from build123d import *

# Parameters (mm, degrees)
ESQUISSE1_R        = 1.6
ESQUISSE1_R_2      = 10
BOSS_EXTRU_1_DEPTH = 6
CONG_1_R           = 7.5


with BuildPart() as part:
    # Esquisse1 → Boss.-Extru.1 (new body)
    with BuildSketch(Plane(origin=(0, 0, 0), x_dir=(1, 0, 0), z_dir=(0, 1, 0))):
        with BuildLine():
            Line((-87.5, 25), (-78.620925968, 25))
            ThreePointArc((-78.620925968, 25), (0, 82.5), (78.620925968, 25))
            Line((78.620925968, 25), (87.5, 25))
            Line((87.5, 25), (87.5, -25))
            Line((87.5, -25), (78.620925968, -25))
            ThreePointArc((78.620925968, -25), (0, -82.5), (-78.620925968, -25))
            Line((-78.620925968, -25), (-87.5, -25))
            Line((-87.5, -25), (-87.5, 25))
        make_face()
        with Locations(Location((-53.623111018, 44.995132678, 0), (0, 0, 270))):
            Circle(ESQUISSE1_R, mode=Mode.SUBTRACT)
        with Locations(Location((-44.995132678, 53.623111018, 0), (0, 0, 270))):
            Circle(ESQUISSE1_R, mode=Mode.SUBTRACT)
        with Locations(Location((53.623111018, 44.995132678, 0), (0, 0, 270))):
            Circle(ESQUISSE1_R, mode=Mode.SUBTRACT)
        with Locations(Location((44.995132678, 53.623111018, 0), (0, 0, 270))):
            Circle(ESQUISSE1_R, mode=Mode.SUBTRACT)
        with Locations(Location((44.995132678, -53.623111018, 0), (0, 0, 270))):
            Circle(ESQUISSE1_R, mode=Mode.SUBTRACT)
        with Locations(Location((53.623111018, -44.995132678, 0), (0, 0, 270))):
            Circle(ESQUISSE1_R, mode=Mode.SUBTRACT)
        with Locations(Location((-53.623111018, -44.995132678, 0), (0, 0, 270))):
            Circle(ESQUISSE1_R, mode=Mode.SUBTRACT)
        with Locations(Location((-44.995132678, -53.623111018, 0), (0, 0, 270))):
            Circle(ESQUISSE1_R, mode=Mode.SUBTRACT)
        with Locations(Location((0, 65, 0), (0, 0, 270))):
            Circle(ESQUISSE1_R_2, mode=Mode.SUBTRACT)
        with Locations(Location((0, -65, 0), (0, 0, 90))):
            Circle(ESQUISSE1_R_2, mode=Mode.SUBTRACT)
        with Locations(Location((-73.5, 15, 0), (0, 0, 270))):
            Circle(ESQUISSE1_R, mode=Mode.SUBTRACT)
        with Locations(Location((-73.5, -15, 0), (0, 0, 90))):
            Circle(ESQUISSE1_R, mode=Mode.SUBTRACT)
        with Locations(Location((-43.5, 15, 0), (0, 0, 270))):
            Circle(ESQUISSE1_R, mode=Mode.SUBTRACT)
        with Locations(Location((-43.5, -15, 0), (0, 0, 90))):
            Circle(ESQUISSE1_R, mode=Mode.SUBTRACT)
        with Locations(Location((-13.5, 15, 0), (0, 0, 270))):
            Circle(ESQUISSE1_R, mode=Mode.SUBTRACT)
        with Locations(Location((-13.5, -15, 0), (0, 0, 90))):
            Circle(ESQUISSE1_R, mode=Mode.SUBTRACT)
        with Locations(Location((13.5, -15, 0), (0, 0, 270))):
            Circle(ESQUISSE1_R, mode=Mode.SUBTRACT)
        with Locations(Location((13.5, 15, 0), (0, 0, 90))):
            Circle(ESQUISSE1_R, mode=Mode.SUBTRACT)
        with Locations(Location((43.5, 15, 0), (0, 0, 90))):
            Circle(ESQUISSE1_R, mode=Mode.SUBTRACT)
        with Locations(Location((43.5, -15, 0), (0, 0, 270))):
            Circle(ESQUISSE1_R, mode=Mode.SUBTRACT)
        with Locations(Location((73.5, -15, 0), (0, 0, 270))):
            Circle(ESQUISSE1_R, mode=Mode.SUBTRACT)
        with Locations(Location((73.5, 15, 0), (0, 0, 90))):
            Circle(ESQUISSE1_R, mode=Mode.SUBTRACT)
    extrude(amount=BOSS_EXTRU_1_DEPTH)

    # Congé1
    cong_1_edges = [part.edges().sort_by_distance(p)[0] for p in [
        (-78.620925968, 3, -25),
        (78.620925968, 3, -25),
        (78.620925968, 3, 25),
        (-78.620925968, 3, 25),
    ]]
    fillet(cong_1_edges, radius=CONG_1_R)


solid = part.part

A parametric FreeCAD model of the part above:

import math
import FreeCAD as App
import Part
import Sketcher


def edges_at(feature, points):
    """Names of the edges that pass closest to the given points."""
    edges = feature.Shape.Edges
    near = lambda p: min(range(len(edges)), key=lambda i: edges[i].distToShape(Part.Vertex(*p))[0])
    return sorted({f"Edge{near(p) + 1}" for p in points})

doc = App.newDocument("Part")
params = doc.addObject("Spreadsheet::Sheet", "Params")
for row, (alias, value) in enumerate([
    ("sketch1_diameter", "20 mm"),
    ("sketch1_diameter2", "3.2 mm"),
    ("sketch1_radius", "82.5 mm"),
    ("sketch1_height", "50 mm"),
    ("pad1_length", "6 mm"),
    ("fillet_radius", "7.5 mm"),
], start=1):
    params.set(f"A{row}", alias)
    params.set(f"B{row}", "=" + value)
    params.setAlias(f"B{row}", alias)

body = doc.addObject("PartDesign::Body", "Body")

# Sketch on XZ plane
sketch1 = body.newObject("Sketcher::SketchObject", "Sketch")
sketch1.AttachmentSupport = (doc.getObject("XZ_Plane"), [""])
sketch1.MapMode = "FlatFace"
sketch1.addGeometry([
    Part.LineSegment(App.Vector(-78.6, -25, 0), App.Vector(-87.5, -25, 0)),  # 0
    Part.LineSegment(App.Vector(-87.5, -25, 0), App.Vector(-87.5, 25, 0)),  # 1
    Part.LineSegment(App.Vector(-87.5, 25, 0), App.Vector(-78.6, 25, 0)),  # 2
    Part.ArcOfCircle(Part.Circle(App.Vector(0, 0, 0), App.Vector(0, 0, 1), 82.5), math.radians(18), math.radians(162)),  # 3
    Part.LineSegment(App.Vector(78.6, 25, 0), App.Vector(87.5, 25, 0)),  # 4
    Part.LineSegment(App.Vector(87.5, 25, 0), App.Vector(87.5, -25, 0)),  # 5
    Part.LineSegment(App.Vector(87.5, -25, 0), App.Vector(78.6, -25, 0)),  # 6
    Part.ArcOfCircle(Part.Circle(App.Vector(0, 0, 0), App.Vector(0, 0, 1), 82.5), math.radians(-162), math.radians(-18)),  # 7
    Part.Circle(App.Vector(45, 53.6, 0), App.Vector(0, 0, 1), 1.6),  # 8
    Part.Circle(App.Vector(53.6, 45, 0), App.Vector(0, 0, 1), 1.6),  # 9
    Part.Circle(App.Vector(73.5, 15, 0), App.Vector(0, 0, 1), 1.6),  # 10
    Part.Circle(App.Vector(43.5, 15, 0), App.Vector(0, 0, 1), 1.6),  # 11
    Part.Circle(App.Vector(13.5, 15, 0), App.Vector(0, 0, 1), 1.6),  # 12
    Part.Circle(App.Vector(0, 65, 0), App.Vector(0, 0, 1), 10),  # 13
    Part.Circle(App.Vector(-45, 53.6, 0), App.Vector(0, 0, 1), 1.6),  # 14
    Part.Circle(App.Vector(-53.6, 45, 0), App.Vector(0, 0, 1), 1.6),  # 15
    Part.Circle(App.Vector(-13.5, 15, 0), App.Vector(0, 0, 1), 1.6),  # 16
    Part.Circle(App.Vector(-43.5, 15, 0), App.Vector(0, 0, 1), 1.6),  # 17
    Part.Circle(App.Vector(-73.5, 15, 0), App.Vector(0, 0, 1), 1.6),  # 18
    Part.Circle(App.Vector(73.5, -15, 0), App.Vector(0, 0, 1), 1.6),  # 19
    Part.Circle(App.Vector(43.5, -15, 0), App.Vector(0, 0, 1), 1.6),  # 20
    Part.Circle(App.Vector(13.5, -15, 0), App.Vector(0, 0, 1), 1.6),  # 21
    Part.Circle(App.Vector(53.6, -45, 0), App.Vector(0, 0, 1), 1.6),  # 22
    Part.Circle(App.Vector(45, -53.6, 0), App.Vector(0, 0, 1), 1.6),  # 23
    Part.Circle(App.Vector(-13.5, -15, 0), App.Vector(0, 0, 1), 1.6),  # 24
    Part.Circle(App.Vector(-43.5, -15, 0), App.Vector(0, 0, 1), 1.6),  # 25
    Part.Circle(App.Vector(-73.5, -15, 0), App.Vector(0, 0, 1), 1.6),  # 26
    Part.Circle(App.Vector(0, -65, 0), App.Vector(0, 0, 1), 10),  # 27
    Part.Circle(App.Vector(-53.6, -45, 0), App.Vector(0, 0, 1), 1.6),  # 28
    Part.Circle(App.Vector(-45, -53.6, 0), App.Vector(0, 0, 1), 1.6),  # 29
], False)
sketch1.addConstraint([
    Sketcher.Constraint("Coincident", 0, 2, 1, 1),
    Sketcher.Constraint("Coincident", 1, 2, 2, 1),
    Sketcher.Constraint("Coincident", 2, 2, 3, 2),
    Sketcher.Constraint("Coincident", 3, 1, 4, 1),
    Sketcher.Constraint("Coincident", 4, 2, 5, 1),
    Sketcher.Constraint("Coincident", 5, 2, 6, 1),
    Sketcher.Constraint("Coincident", 6, 2, 7, 2),
    Sketcher.Constraint("Coincident", 7, 1, 0, 1),
    Sketcher.Constraint("Horizontal", 0),
    Sketcher.Constraint("Vertical", 1),
    Sketcher.Constraint("Horizontal", 2),
    Sketcher.Constraint("Horizontal", 4),
    Sketcher.Constraint("Vertical", 5),
    Sketcher.Constraint("Horizontal", 6),
    Sketcher.Constraint("Coincident", 3, 3, -1, 1),
    Sketcher.Constraint("Coincident", 7, 3, -1, 1),
    Sketcher.Constraint("Equal", 3, 7),
    Sketcher.Constraint("Equal", 8, 9),
    Sketcher.Constraint("Equal", 9, 10),
    Sketcher.Constraint("Equal", 10, 11),
    Sketcher.Constraint("Equal", 11, 12),
    Sketcher.Constraint("Equal", 12, 14),
    Sketcher.Constraint("Equal", 14, 15),
    Sketcher.Constraint("Equal", 15, 16),
    Sketcher.Constraint("Equal", 16, 17),
    Sketcher.Constraint("Equal", 17, 18),
    Sketcher.Constraint("Equal", 18, 19),
    Sketcher.Constraint("Equal", 19, 20),
    Sketcher.Constraint("Equal", 20, 21),
    Sketcher.Constraint("Equal", 21, 22),
    Sketcher.Constraint("Equal", 22, 23),
    Sketcher.Constraint("Equal", 23, 24),
    Sketcher.Constraint("Equal", 24, 25),
    Sketcher.Constraint("Equal", 25, 26),
    Sketcher.Constraint("Equal", 13, 27),
    Sketcher.Constraint("Equal", 26, 28),
    Sketcher.Constraint("Equal", 28, 29),
    Sketcher.Constraint("Symmetric", 18, 3, 19, 3, -1, 1),
    Sketcher.Constraint("Symmetric", 17, 3, 20, 3, -1, 1),
    Sketcher.Constraint("Symmetric", 16, 3, 21, 3, -1, 1),
    Sketcher.Constraint("Symmetric", 15, 3, 22, 3, -1, 1),
    Sketcher.Constraint("Symmetric", 14, 3, 23, 3, -1, 1),
    Sketcher.Constraint("Symmetric", 12, 3, 24, 3, -1, 1),
    Sketcher.Constraint("Symmetric", 11, 3, 25, 3, -1, 1),
    Sketcher.Constraint("Symmetric", 10, 3, 26, 3, -1, 1),
    Sketcher.Constraint("Symmetric", 13, 3, 27, 3, -1, 1),
    Sketcher.Constraint("Symmetric", 9, 3, 28, 3, -1, 1),
    Sketcher.Constraint("Symmetric", 8, 3, 29, 3, -1, 1),
    Sketcher.Constraint("Symmetric", 0, 2, 4, 2, -1, 1),
    Sketcher.Constraint("Symmetric", 8, 3, 14, 3, -2),
    Sketcher.Constraint("Symmetric", 9, 3, 15, 3, -2),
    Sketcher.Constraint("Symmetric", 12, 3, 16, 3, -2),
    Sketcher.Constraint("Symmetric", 11, 3, 17, 3, -2),
    Sketcher.Constraint("Symmetric", 10, 3, 18, 3, -2),
    Sketcher.Constraint("PointOnObject", 13, 3, -2),
    Sketcher.Constraint("Horizontal", 10, 3, 11, 3),
    Sketcher.Constraint("Horizontal", 11, 3, 12, 3),
    Sketcher.Constraint("Horizontal", 2, 2, 3, 1),
    Sketcher.Constraint("Horizontal", 0, 2, 5, 2),
    Sketcher.Constraint("Diameter", 13, 20.0),
    Sketcher.Constraint("Diameter", 8, 3.2),
    Sketcher.Constraint("Radius", 3, 82.5),
    Sketcher.Constraint("DistanceY", 1, 1, 1, 2, 50.0),
    Sketcher.Constraint("DistanceY", -1, 1, 10, 3, 15.0),
    Sketcher.Constraint("DistanceY", -1, 1, 13, 3, 65.0),
    Sketcher.Constraint("DistanceX", 11, 3, 10, 3, 30.0),
    Sketcher.Constraint("DistanceX", 12, 3, 11, 3, 30.0),
    Sketcher.Constraint("DistanceX", 16, 3, 12, 3, 27.0),
    Sketcher.Constraint("DistanceX", 0, 2, 26, 3, 14.0),
    Sketcher.Constraint("DistanceY", -1, 1, 8, 3, 53.623111),
    Sketcher.Constraint("DistanceX", -1, 1, 9, 3, 53.623111),
    Sketcher.Constraint("DistanceX", 8, 3, 9, 3, 8.627978),
    Sketcher.Constraint("DistanceY", 9, 3, 8, 3, 8.627978),
])
sketch1.setExpression("Constraints[59]", "Params.sketch1_diameter")
sketch1.setExpression("Constraints[60]", "Params.sketch1_diameter2")
sketch1.setExpression("Constraints[61]", "Params.sketch1_radius")
sketch1.setExpression("Constraints[62]", "Params.sketch1_height")
pad1 = body.newObject("PartDesign::Pad", "Pad")
pad1.Profile = sketch1
pad1.setExpression("Length", "Params.pad1_length")
pad1.Reversed = True
doc.recompute()

fillet = body.newObject("PartDesign::Fillet", "Fillet")
fillet.Base = (pad1, edges_at(pad1, [
    (-78.621, 3, -25),
    (78.621, 3, -25),
    (78.621, 3, 25),
    (-78.621, 3, 25),
]))
fillet.setExpression("Radius", "Params.fillet_radius")

doc.recompute()
